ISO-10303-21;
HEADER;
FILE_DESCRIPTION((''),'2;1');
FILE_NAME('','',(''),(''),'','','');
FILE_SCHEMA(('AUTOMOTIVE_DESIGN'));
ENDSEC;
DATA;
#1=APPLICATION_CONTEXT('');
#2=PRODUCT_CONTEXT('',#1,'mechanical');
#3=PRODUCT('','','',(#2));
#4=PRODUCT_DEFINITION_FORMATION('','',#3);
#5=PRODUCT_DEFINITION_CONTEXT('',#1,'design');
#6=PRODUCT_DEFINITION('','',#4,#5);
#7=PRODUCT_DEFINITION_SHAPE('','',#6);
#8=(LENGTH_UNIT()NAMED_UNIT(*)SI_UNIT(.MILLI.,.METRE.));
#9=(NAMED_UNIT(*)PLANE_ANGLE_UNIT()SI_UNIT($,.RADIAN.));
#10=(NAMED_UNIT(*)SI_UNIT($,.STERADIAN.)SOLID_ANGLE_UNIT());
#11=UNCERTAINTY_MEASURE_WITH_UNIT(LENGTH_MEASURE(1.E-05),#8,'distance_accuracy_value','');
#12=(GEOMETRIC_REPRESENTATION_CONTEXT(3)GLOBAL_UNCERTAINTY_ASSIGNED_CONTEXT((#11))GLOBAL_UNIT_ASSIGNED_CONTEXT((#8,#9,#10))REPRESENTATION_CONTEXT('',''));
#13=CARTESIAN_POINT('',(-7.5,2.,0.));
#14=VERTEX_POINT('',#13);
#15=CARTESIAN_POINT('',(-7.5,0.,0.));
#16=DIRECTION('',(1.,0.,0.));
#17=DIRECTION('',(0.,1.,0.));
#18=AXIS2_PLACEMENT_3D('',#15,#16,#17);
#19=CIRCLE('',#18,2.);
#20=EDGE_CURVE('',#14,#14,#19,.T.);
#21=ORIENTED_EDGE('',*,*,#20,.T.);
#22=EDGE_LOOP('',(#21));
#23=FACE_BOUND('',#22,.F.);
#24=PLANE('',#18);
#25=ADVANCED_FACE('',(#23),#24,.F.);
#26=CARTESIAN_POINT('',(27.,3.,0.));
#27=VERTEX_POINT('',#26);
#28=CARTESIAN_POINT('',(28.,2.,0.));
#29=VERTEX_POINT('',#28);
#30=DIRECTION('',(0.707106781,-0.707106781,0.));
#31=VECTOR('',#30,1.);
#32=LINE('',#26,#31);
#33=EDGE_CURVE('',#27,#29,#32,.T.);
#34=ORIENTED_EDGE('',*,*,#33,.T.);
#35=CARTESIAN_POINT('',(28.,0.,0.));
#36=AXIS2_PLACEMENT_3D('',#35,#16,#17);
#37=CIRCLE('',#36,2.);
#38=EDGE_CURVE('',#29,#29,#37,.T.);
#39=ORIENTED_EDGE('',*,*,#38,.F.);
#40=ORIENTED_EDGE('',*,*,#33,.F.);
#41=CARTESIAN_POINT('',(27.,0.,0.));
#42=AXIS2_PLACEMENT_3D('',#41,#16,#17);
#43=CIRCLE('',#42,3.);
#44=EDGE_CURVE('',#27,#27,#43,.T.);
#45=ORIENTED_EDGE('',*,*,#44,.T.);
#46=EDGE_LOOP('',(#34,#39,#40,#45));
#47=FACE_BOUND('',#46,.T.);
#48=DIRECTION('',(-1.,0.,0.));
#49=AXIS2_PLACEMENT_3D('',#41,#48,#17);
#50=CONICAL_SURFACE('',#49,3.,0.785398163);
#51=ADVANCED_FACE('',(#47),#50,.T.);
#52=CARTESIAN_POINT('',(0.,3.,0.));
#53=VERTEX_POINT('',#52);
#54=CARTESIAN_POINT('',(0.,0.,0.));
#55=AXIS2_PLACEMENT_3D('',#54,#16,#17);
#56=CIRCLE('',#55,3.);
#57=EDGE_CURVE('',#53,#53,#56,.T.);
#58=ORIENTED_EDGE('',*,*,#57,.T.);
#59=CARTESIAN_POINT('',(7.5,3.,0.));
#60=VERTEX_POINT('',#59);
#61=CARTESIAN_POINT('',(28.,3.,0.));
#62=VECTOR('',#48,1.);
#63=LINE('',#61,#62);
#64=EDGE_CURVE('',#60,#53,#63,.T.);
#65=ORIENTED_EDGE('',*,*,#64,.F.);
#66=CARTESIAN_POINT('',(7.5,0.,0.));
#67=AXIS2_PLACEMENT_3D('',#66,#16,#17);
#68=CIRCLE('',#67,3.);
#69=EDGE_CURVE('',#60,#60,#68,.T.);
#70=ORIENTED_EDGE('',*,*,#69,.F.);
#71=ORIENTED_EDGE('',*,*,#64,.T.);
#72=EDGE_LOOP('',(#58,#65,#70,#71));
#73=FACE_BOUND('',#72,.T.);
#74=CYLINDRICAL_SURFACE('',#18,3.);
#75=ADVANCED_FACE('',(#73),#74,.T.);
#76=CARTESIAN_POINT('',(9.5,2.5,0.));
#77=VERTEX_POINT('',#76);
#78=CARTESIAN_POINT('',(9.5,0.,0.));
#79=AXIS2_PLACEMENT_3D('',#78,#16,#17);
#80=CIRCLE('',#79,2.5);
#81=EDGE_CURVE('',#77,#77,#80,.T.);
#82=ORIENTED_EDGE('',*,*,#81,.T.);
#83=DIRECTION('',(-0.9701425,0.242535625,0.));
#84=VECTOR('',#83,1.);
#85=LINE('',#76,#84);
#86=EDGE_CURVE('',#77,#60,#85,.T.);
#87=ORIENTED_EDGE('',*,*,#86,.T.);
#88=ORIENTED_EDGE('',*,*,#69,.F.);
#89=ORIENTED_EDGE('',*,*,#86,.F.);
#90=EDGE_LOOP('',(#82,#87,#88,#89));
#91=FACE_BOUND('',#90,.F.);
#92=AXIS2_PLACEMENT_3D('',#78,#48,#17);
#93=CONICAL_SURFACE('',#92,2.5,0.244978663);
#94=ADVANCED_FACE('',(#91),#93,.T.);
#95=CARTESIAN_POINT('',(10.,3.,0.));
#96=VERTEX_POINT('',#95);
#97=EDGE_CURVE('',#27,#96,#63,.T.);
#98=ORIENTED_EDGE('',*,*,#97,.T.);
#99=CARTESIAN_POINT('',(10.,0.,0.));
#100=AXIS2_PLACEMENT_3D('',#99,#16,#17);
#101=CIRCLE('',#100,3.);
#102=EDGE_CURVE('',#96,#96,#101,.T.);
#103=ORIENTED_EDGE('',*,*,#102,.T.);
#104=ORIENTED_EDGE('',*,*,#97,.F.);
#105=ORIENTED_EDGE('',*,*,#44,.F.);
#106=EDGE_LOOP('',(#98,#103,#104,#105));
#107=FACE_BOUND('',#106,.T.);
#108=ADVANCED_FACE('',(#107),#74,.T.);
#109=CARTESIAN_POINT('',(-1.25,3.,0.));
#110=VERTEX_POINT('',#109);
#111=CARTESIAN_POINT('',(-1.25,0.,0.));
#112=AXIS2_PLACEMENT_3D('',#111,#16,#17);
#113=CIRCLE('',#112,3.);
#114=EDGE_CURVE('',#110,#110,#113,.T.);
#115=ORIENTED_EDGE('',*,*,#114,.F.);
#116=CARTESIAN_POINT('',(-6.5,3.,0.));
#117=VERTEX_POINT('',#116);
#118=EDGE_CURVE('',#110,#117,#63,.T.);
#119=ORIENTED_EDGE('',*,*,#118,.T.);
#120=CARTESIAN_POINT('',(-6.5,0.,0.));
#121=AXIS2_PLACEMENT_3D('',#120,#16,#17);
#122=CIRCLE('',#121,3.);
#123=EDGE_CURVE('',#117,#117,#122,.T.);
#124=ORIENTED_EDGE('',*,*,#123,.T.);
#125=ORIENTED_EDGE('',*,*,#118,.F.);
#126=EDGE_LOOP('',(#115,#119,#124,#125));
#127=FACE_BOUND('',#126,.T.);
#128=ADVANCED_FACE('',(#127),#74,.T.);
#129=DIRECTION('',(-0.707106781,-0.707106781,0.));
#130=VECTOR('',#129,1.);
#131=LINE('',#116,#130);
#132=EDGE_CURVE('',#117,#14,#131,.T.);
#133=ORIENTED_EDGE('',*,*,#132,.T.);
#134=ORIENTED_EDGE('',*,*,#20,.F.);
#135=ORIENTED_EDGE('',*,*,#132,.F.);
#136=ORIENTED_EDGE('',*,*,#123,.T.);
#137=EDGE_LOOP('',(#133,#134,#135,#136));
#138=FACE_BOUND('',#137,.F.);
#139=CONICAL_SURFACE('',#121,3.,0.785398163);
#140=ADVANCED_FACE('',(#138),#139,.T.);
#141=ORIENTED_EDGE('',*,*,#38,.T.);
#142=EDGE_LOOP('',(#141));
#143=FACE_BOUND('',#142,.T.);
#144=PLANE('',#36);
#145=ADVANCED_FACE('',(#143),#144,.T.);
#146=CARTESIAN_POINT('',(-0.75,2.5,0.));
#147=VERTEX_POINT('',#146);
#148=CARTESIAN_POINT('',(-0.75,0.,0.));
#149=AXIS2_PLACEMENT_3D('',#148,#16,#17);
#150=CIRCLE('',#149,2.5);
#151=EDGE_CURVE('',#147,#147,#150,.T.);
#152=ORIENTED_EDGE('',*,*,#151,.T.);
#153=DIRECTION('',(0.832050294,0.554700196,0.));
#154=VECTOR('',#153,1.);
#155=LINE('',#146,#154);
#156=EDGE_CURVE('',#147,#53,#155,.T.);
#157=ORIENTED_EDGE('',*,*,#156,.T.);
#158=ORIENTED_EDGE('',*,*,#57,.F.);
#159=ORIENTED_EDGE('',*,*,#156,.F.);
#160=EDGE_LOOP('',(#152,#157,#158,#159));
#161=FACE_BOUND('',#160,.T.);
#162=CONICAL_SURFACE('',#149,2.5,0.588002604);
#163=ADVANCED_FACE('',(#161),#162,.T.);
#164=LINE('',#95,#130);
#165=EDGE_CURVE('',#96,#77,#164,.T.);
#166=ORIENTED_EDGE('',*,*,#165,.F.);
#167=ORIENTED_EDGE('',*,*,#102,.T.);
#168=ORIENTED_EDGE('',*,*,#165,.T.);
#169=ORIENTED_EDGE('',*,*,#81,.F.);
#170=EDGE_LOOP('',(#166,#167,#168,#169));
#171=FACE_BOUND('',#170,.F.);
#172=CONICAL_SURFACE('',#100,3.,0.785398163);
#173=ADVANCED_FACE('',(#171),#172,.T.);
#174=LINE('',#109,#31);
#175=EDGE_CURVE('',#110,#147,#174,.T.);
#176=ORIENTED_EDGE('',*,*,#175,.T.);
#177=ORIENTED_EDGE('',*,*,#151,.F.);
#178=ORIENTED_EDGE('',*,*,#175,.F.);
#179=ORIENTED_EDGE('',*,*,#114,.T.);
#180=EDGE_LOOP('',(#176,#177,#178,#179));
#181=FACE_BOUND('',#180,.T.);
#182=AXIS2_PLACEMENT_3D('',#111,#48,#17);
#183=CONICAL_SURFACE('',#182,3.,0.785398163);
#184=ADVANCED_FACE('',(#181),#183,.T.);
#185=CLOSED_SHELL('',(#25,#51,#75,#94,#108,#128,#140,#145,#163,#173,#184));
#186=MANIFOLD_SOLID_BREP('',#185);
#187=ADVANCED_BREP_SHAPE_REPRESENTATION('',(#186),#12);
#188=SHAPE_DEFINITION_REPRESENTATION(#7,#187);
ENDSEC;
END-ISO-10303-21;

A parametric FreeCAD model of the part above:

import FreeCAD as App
import Part
import Sketcher

V = App.Vector
Q = App.Units.Quantity


def edges_at(feature, points):
    """Names of the edges that pass closest to the given points."""
    edges = feature.Shape.Edges
    near = lambda p: min(range(len(edges)), key=lambda i: edges[i].distToShape(Part.Vertex(*p))[0])
    return sorted({f"Edge{near(p) + 1}" for p in points})


def add_polygon(sketch, points):
    """Adds a closed chain of lines whose ends are joined by coincident constraints."""
    first, n = sketch.GeometryCount, len(points)
    for a, b in zip(points, points[1:] + points[:1]):
        sketch.addGeometry(Part.LineSegment(App.Vector(*a, 0), App.Vector(*b, 0)), False)
    for i in range(n):
        sketch.addConstraint(Sketcher.Constraint("Coincident", first + i, 2, first + (i + 1) % n, 1))

doc = App.newDocument("Part")
params = doc.addObject("Spreadsheet::Sheet", "Params")
for row, (alias, value) in enumerate([
    ("sketch1_height", "3 mm"),
    ("revolution_angle", "360 deg"),
    ("chamfer_size", "1 mm"),
    ("chamfer2_size", "1 mm"),
    ("sketch2_width", "2.5 mm"),
    ("groove_angle", "360 deg"),
    ("sketch3_width", "1.25 mm"),
    ("groove2_angle", "360 deg"),
], start=1):
    params.set(f"A{row}", alias)
    params.set(f"B{row}", "=" + value)
    params.setAlias(f"B{row}", alias)

body = doc.addObject("PartDesign::Body", "Body")

# Sketch on XY plane
sketch1 = doc.addObject("Sketcher::SketchObject", "Sketch")
body.addObject(sketch1)
sketch1.AttachmentSupport = (doc.XY_Plane, [""])
sketch1.MapMode = "FlatFace"
add_polygon(sketch1, [(28, 0), (28, 3), (-7.5, 3), (-7.5, 0)])  # lines 0-3
sketch1.addConstraint([
    Sketcher.Constraint("Vertical", 0),
    Sketcher.Constraint("Horizontal", 1),
    Sketcher.Constraint("Vertical", 2),
    Sketcher.Constraint("Horizontal", 3),
    Sketcher.Constraint("PointOnObject", 2, 2, -1),
    Sketcher.Constraint("DistanceX", -1, 1, 0, 2, Q("28 mm")),
    Sketcher.Constraint("DistanceX", 1, 2, -1, 1, Q("7.5 mm")),
    Sketcher.Constraint("DistanceY", 0, 1, 0, 2, Q("3 mm")),
])
sketch1.setExpression("Constraints[11]", "Params.sketch1_height")
revolution = doc.addObject("PartDesign::Revolution", "Revolution")
body.addObject(revolution)
revolution.Profile = sketch1
revolution.ReferenceAxis = (sketch1, ["H_Axis"])
revolution.setExpression("Angle", "Params.revolution_angle")
doc.recompute()

chamfer = doc.addObject("PartDesign::Chamfer", "Chamfer")
body.addObject(chamfer)
chamfer.Base = (revolution, edges_at(revolution, [(-7.5, -3, 0)]))
chamfer.setExpression("Size", "Params.chamfer_size")
doc.recompute()

chamfer2 = doc.addObject("PartDesign::Chamfer", "Chamfer001")
body.addObject(chamfer2)
chamfer2.Base = (chamfer, edges_at(chamfer, [(28, -3, 0)]))
chamfer2.setExpression("Size", "Params.chamfer2_size")

# Sketch on XY plane
sketch2 = doc.addObject("Sketcher::SketchObject", "Sketch001")
body.addObject(sketch2)
sketch2.AttachmentSupport = (doc.XY_Plane, [""])
sketch2.MapMode = "FlatFace"
add_polygon(sketch2, [(10, 3), (7.5, 3), (9.5, 2.5)])  # lines 0-2
sketch2.addConstraint([
    Sketcher.Constraint("Horizontal", 0),
    Sketcher.Constraint("Angle", 2, Q("45 deg")),
    Sketcher.Constraint("DistanceX", 0, 2, 0, 1, Q("2.5 mm")),
    Sketcher.Constraint("DistanceY", -1, 1, 1, 2, Q("2.5 mm")),
    Sketcher.Constraint("DistanceY", 1, 2, 0, 2, Q("0.5 mm")),
    Sketcher.Constraint("DistanceX", -1, 1, 2, 2, Q("10 mm")),
])
sketch2.setExpression("Constraints[5]", "Params.sketch2_width")
groove = doc.addObject("PartDesign::Groove", "Groove")
body.addObject(groove)
groove.Profile = sketch2
groove.ReferenceAxis = (sketch2, ["H_Axis"])
groove.setExpression("Angle", "Params.groove_angle")

# Sketch on XY plane
sketch3 = doc.addObject("Sketcher::SketchObject", "Sketch002")
body.addObject(sketch3)
sketch3.AttachmentSupport = (doc.XY_Plane, [""])
sketch3.MapMode = "FlatFace"
add_polygon(sketch3, [(0, 3), (-1.25, 3), (-0.75, 2.5)])  # lines 0-2
sketch3.addConstraint([
    Sketcher.Constraint("Horizontal", 0),
    Sketcher.Constraint("PointOnObject", 2, 2, -2),
    Sketcher.Constraint("Angle", 1, Q("-45 deg")),
    Sketcher.Constraint("DistanceX", 0, 2, 0, 1, Q("1.25 mm")),
    Sketcher.Constraint("DistanceX", 0, 2, 1, 2, Q("0.5 mm")),
    Sketcher.Constraint("DistanceY", -1, 1, 0, 2, Q("3 mm")),
])
sketch3.setExpression("Constraints[6]", "Params.sketch3_width")
groove2 = doc.addObject("PartDesign::Groove", "Groove001")
body.addObject(groove2)
groove2.Profile = sketch3
groove2.ReferenceAxis = (sketch3, ["H_Axis"])
groove2.setExpression("Angle", "Params.groove2_angle")

doc.recompute()
